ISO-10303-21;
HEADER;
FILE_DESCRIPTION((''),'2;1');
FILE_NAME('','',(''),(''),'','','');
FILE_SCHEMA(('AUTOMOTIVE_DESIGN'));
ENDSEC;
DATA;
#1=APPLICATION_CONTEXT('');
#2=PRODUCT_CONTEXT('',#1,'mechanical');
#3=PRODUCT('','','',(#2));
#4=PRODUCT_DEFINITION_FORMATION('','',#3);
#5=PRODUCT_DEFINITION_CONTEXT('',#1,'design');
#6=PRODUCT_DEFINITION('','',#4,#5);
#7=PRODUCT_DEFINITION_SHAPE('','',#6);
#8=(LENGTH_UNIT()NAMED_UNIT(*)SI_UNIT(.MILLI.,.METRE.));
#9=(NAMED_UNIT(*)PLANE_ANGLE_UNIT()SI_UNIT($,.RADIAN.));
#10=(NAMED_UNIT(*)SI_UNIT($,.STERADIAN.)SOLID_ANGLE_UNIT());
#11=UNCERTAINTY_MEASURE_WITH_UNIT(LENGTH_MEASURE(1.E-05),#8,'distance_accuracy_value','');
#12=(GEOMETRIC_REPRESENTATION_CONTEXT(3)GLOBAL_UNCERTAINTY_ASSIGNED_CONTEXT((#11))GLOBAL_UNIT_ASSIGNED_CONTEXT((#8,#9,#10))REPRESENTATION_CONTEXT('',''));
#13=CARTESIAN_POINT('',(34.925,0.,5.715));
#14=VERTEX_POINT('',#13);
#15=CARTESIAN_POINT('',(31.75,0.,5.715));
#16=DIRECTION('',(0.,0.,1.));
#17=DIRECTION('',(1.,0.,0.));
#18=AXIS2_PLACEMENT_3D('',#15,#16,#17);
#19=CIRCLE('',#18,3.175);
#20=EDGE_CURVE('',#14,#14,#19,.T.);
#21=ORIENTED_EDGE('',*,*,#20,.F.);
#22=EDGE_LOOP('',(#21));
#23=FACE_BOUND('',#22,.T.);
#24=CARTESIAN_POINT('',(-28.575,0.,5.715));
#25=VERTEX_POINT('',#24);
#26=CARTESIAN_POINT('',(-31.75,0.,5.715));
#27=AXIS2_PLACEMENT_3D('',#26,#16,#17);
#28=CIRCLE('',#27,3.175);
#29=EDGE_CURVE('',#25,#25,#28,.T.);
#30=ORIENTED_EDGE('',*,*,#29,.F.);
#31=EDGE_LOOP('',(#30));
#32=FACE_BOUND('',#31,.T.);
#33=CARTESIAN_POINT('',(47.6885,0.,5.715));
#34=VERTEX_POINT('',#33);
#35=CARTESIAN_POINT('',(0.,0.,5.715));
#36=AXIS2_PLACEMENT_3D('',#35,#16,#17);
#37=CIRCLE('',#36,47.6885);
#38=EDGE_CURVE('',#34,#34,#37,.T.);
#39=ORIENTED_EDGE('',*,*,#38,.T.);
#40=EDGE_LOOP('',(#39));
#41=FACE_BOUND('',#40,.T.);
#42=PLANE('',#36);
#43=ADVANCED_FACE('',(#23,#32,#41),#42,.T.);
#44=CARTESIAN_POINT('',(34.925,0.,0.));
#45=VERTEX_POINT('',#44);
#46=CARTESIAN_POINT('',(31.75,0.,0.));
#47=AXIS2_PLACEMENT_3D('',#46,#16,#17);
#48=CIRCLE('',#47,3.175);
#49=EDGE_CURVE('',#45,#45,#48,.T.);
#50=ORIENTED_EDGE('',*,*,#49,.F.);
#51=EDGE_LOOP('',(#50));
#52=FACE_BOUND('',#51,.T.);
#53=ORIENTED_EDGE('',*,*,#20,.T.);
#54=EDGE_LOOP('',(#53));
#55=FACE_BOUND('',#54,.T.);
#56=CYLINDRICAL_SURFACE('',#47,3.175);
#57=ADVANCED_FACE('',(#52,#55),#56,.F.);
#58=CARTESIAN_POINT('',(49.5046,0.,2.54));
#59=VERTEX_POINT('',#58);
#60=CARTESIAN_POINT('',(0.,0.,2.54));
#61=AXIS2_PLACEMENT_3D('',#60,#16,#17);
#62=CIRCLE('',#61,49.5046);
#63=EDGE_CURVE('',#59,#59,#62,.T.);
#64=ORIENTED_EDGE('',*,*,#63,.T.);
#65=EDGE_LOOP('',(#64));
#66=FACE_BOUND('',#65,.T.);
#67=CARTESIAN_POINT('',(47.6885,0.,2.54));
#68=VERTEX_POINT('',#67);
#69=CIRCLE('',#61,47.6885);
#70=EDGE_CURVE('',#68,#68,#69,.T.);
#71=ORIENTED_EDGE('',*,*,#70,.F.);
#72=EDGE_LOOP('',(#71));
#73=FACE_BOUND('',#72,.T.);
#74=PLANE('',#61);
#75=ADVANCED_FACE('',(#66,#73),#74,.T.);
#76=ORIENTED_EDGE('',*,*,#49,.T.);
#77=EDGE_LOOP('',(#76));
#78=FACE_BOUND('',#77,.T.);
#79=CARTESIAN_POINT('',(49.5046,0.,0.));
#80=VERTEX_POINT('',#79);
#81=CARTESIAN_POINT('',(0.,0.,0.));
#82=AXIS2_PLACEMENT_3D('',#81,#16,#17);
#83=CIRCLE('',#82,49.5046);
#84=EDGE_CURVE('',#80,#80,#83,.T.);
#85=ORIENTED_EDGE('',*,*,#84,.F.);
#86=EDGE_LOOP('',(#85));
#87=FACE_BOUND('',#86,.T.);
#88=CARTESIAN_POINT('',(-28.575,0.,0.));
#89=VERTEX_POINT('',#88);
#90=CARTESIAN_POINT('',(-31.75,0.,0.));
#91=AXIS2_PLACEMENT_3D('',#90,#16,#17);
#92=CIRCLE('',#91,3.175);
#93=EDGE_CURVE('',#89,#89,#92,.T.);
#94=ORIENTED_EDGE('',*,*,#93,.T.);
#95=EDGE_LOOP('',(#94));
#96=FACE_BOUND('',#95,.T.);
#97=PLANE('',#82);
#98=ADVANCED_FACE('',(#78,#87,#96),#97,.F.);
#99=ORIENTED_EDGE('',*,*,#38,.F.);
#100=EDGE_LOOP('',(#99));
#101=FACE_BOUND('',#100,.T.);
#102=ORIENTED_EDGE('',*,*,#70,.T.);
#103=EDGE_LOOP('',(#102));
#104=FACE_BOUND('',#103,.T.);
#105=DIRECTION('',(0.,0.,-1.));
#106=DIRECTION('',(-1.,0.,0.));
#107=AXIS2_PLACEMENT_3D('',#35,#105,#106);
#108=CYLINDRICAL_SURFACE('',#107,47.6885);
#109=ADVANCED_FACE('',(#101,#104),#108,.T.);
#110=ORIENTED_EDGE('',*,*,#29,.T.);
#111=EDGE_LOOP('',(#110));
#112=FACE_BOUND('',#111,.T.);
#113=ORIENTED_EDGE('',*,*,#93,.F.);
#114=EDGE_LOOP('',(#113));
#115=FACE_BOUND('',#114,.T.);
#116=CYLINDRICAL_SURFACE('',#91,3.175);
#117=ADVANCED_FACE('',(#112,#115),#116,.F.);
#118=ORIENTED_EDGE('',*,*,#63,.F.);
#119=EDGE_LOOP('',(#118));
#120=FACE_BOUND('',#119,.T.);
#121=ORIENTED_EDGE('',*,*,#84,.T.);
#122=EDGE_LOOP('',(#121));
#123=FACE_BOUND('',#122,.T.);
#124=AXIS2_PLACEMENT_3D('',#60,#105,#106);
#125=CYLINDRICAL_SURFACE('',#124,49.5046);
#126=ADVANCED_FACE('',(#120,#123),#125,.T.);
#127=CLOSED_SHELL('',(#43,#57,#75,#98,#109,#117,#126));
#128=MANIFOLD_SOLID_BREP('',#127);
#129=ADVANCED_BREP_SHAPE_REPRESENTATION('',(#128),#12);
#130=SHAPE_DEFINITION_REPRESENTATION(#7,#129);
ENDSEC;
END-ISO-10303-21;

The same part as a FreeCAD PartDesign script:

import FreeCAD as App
import Part
import Sketcher

V = App.Vector
Q = App.Units.Quantity

doc = App.newDocument("Part")
body = doc.addObject("PartDesign::Body", "Body")

# Sketch on XY plane
sketch1 = doc.addObject("Sketcher::SketchObject", "Sketch")
body.addObject(sketch1)
sketch1.AttachmentSupport = (doc.XY_Plane, [""])
sketch1.MapMode = "FlatFace"
sketch1.addGeometry(Part.Circle(V(0, 0, 0), V(0, 0, 1), 50), False)
sketch1.addConstraint(Sketcher.Constraint("Coincident", 0, 3, -1, 1))
sketch1.addConstraint(Sketcher.Constraint("Diameter", 0, Q("3.898 in")))
pad1 = doc.addObject("PartDesign::Pad", "Pad")
body.addObject(pad1)
pad1.Profile = sketch1
pad1.Length = Q("0.1 in")

# Sketch on XY plane
sketch2 = doc.addObject("Sketcher::SketchObject", "Sketch001")
body.addObject(sketch2)
sketch2.AttachmentSupport = (doc.XY_Plane, [""])
sketch2.MapMode = "FlatFace"
sketch2.AttachmentOffset = App.Placement(V(0, 0, 0.1 * 25.4), App.Rotation())
sketch2.addGeometry(Part.Circle(V(0, 0, 0), V(0, 0, 1), 48), False)
sketch2.addConstraint(Sketcher.Constraint("Coincident", 0, 3, -1, 1))
sketch2.addConstraint(Sketcher.Constraint("Diameter", 0, Q("3.755 in")))
pad2 = doc.addObject("PartDesign::Pad", "Pad001")
body.addObject(pad2)
pad2.Profile = sketch2
pad2.Length = Q("0.125 in")

# Sketch on XY plane
sketch3 = doc.addObject("Sketcher::SketchObject", "Sketch002")
body.addObject(sketch3)
sketch3.AttachmentSupport = (doc.XY_Plane, [""])
sketch3.MapMode = "FlatFace"
sketch3.AttachmentOffset = App.Placement(V(0, 0, 0.225 * 25.4), App.Rotation())
sketch3.addGeometry(Part.Circle(V(-31.8, 0, 0), V(0, 0, 1), 3.2), False)
sketch3.addGeometry(Part.Circle(V(31.8, 0, 0), V(0, 0, 1), 3.2), False)
sketch3.addConstraint(Sketcher.Constraint("Equal", 0, 1))
sketch3.addConstraint(Sketcher.Constraint("Symmetric", 0, 3, 1, 3, -1, 1))
sketch3.addConstraint(Sketcher.Constraint("PointOnObject", 0, 3, -1))
sketch3.addConstraint(Sketcher.Constraint("Diameter", 0, Q("0.25 in")))
sketch3.addConstraint(Sketcher.Constraint("DistanceX", 0, 3, 1, 3, Q("2.5 in")))
pocket1 = doc.addObject("PartDesign::Pocket", "Pocket")
body.addObject(pocket1)
pocket1.Profile = sketch3
pocket1.Type = "ThroughAll"

doc.recompute()
